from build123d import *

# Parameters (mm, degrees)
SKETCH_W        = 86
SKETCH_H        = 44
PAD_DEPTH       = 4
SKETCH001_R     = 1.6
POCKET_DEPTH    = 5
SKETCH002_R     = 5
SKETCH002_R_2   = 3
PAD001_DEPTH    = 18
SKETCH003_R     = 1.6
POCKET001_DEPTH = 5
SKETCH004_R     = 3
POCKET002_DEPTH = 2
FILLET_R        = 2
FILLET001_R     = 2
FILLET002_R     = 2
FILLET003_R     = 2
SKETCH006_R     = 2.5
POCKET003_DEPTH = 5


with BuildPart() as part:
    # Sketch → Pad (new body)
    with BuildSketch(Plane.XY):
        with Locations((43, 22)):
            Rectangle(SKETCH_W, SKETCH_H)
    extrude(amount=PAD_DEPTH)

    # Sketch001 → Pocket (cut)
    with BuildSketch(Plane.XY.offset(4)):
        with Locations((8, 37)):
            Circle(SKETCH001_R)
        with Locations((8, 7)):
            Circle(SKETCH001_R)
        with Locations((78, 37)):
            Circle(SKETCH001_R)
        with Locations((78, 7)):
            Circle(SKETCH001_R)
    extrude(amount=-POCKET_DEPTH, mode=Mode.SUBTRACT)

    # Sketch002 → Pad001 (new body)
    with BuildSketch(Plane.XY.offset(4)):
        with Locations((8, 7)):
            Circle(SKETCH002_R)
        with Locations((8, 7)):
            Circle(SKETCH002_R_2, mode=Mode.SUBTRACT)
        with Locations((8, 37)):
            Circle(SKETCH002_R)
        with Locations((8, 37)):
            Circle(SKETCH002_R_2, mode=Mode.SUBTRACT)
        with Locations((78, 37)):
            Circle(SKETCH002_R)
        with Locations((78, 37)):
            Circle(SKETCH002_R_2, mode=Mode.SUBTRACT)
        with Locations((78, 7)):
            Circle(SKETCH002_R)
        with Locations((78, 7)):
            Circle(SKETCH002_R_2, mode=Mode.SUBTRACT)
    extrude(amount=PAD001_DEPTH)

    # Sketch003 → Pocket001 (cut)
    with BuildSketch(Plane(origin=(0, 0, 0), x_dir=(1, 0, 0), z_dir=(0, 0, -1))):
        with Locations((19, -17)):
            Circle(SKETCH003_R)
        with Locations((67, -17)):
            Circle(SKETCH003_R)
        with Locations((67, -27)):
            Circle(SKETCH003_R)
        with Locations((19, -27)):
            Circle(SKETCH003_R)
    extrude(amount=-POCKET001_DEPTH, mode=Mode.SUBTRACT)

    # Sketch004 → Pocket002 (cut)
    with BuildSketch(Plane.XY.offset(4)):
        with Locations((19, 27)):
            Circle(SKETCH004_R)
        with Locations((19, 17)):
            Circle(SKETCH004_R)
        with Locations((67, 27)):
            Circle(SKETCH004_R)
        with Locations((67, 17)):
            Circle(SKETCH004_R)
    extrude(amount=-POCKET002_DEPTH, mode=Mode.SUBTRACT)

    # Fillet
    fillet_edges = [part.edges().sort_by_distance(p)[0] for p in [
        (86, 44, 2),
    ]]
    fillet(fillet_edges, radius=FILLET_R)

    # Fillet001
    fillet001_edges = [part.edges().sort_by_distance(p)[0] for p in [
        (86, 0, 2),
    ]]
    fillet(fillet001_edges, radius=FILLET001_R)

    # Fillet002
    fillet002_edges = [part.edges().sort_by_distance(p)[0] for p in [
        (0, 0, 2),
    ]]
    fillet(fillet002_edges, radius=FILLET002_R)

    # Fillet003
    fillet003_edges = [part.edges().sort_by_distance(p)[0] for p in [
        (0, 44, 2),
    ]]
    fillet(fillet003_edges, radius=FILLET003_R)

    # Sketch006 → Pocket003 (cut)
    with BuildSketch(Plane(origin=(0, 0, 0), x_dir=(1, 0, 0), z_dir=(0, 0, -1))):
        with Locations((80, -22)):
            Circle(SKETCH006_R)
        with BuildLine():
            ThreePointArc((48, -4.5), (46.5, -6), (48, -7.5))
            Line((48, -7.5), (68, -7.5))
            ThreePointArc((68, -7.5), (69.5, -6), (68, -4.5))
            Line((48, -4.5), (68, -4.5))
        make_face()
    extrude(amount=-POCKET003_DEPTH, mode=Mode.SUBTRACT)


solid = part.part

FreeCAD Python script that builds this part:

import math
import FreeCAD as App
import Part
import Sketcher

V = App.Vector
Q = App.Units.Quantity


def edges_at(feature, points):
    """Names of the edges that pass closest to the given points."""
    edges = feature.Shape.Edges
    near = lambda p: min(range(len(edges)), key=lambda i: edges[i].distToShape(Part.Vertex(*p))[0])
    return sorted({f"Edge{near(p) + 1}" for p in points})


def add_polygon(sketch, points):
    """Adds a closed chain of lines whose ends are joined by coincident constraints."""
    first, n = sketch.GeometryCount, len(points)
    for a, b in zip(points, points[1:] + points[:1]):
        sketch.addGeometry(Part.LineSegment(App.Vector(*a, 0), App.Vector(*b, 0)), False)
    for i in range(n):
        sketch.addConstraint(Sketcher.Constraint("Coincident", first + i, 2, first + (i + 1) % n, 1))

doc = App.newDocument("Part")
params = doc.addObject("Spreadsheet::Sheet", "Params")
for row, (alias, value) in enumerate([
    ("sketch1_width", "86 mm"),
    ("sketch1_height", "44 mm"),
    ("pad1_length", "4 mm"),
    ("sketch2_diameter", "3.2 mm"),
    ("pocket1_length", "5 mm"),
    ("sketch3_diameter", "10 mm"),
    ("sketch3_diameter2", "6 mm"),
    ("pad2_length", "18 mm"),
    ("sketch4_diameter", "3.2 mm"),
    ("pocket2_length", "5 mm"),
    ("sketch5_diameter", "6 mm"),
    ("pocket3_length", "2 mm"),
    ("fillet_radius", "2 mm"),
    ("fillet2_radius", "2 mm"),
    ("fillet3_radius", "2 mm"),
    ("fillet4_radius", "2 mm"),
    ("sketch6_diameter", "5 mm"),
    ("sketch6_radius", "1.5 mm"),
    ("sketch6_width", "20 mm"),
    ("pocket4_length", "5 mm"),
], start=1):
    params.set(f"A{row}", alias)
    params.set(f"B{row}", "=" + value)
    params.setAlias(f"B{row}", alias)

body = doc.addObject("PartDesign::Body", "Body")

# Sketch on XY plane
sketch1 = body.newObject("Sketcher::SketchObject", "Sketch")
sketch1.AttachmentSupport = (doc.getObject("XY_Plane"), [""])
sketch1.MapMode = "FlatFace"
add_polygon(sketch1, [(0, 44), (0, 0), (86, 0), (86, 44)])  # lines 0-3
sketch1.addConstraint([
    Sketcher.Constraint("Vertical", 0),
    Sketcher.Constraint("Horizontal", 1),
    Sketcher.Constraint("Vertical", 2),
    Sketcher.Constraint("Horizontal", 3),
    Sketcher.Constraint("Coincident", 0, 2, -1, 1),
    Sketcher.Constraint("DistanceX", 1, 1, 1, 2, Q("86 mm")),
    Sketcher.Constraint("DistanceY", 0, 2, 0, 1, Q("44 mm")),
])
sketch1.setExpression("Constraints[9]", "Params.sketch1_width")
sketch1.setExpression("Constraints[10]", "Params.sketch1_height")
pad1 = body.newObject("PartDesign::Pad", "Pad")
pad1.Profile = sketch1
pad1.setExpression("Length", "Params.pad1_length")

# Sketch on XY plane
sketch2 = body.newObject("Sketcher::SketchObject", "Sketch001")
sketch2.AttachmentSupport = (doc.getObject("XY_Plane"), [""])
sketch2.MapMode = "FlatFace"
sketch2.AttachmentOffset = App.Placement(V(0, 0, 4), App.Rotation())
sketch2.addGeometry([
    Part.Circle(V(8, 37, 0), V(0, 0, 1), 1.6),
    Part.Circle(V(8, 7, 0), V(0, 0, 1), 1.6),
    Part.Circle(V(78, 37, 0), V(0, 0, 1), 1.6),
    Part.Circle(V(78, 7, 0), V(0, 0, 1), 1.6),
], False)
sketch2.addConstraint([
    Sketcher.Constraint("Equal", 0, 1),
    Sketcher.Constraint("Equal", 1, 2),
    Sketcher.Constraint("Equal", 2, 3),
    Sketcher.Constraint("Horizontal", 0, 3, 2, 3),
    Sketcher.Constraint("Horizontal", 1, 3, 3, 3),
    Sketcher.Constraint("Vertical", 0, 3, 1, 3),
    Sketcher.Constraint("Vertical", 2, 3, 3, 3),
    Sketcher.Constraint("Diameter", 0, Q("3.2 mm")),
    Sketcher.Constraint("DistanceX", -1, 1, 0, 3, Q("8 mm")),
    Sketcher.Constraint("DistanceY", -1, 1, 0, 3, Q("37 mm")),
    Sketcher.Constraint("DistanceY", -1, 1, 1, 3, Q("7 mm")),
    Sketcher.Constraint("DistanceX", -1, 1, 2, 3, Q("78 mm")),
])
sketch2.setExpression("Constraints[7]", "Params.sketch2_diameter")
pocket1 = body.newObject("PartDesign::Pocket", "Pocket")
pocket1.Profile = sketch2
pocket1.setExpression("Length", "Params.pocket1_length")

# Sketch on XY plane
sketch3 = body.newObject("Sketcher::SketchObject", "Sketch002")
sketch3.AttachmentSupport = (doc.getObject("XY_Plane"), [""])
sketch3.MapMode = "FlatFace"
sketch3.AttachmentOffset = App.Placement(V(0, 0, 4), App.Rotation())
sketch3.addGeometry([
    Part.Circle(V(8, 7, 0), V(0, 0, 1), 5),  # 0
    Part.Circle(V(8, 7, 0), V(0, 0, 1), 3),  # 1
    Part.Circle(V(8, 37, 0), V(0, 0, 1), 5),  # 2
    Part.Circle(V(8, 37, 0), V(0, 0, 1), 3),  # 3
    Part.Circle(V(78, 37, 0), V(0, 0, 1), 5),  # 4
    Part.Circle(V(78, 37, 0), V(0, 0, 1), 3),  # 5
    Part.Circle(V(78, 7, 0), V(0, 0, 1), 5),  # 6
    Part.Circle(V(78, 7, 0), V(0, 0, 1), 3),  # 7
], False)
sketch3.addConstraint([
    Sketcher.Constraint("Coincident", 1, 3, 0, 3),
    Sketcher.Constraint("Coincident", 3, 3, 2, 3),
    Sketcher.Constraint("Coincident", 5, 3, 4, 3),
    Sketcher.Constraint("Coincident", 7, 3, 6, 3),
    Sketcher.Constraint("Equal", 0, 2),
    Sketcher.Constraint("Equal", 1, 3),
    Sketcher.Constraint("Equal", 2, 4),
    Sketcher.Constraint("Equal", 3, 5),
    Sketcher.Constraint("Equal", 4, 6),
    Sketcher.Constraint("Equal", 5, 7),
    Sketcher.Constraint("Horizontal", 3, 3, 4, 3),
    Sketcher.Constraint("Horizontal", 1, 3, 6, 3),
    Sketcher.Constraint("Vertical", 1, 3, 2, 3),
    Sketcher.Constraint("Vertical", 5, 3, 6, 3),
    Sketcher.Constraint("Diameter", 0, Q("10 mm")),
    Sketcher.Constraint("Diameter", 1, Q("6 mm")),
    Sketcher.Constraint("DistanceX", -1, 1, 0, 3, Q("8 mm")),
    Sketcher.Constraint("DistanceY", -1, 1, 0, 3, Q("7 mm")),
    Sketcher.Constraint("DistanceY", -1, 1, 2, 3, Q("37 mm")),
    Sketcher.Constraint("DistanceX", -1, 1, 4, 3, Q("78 mm")),
])
sketch3.setExpression("Constraints[14]", "Params.sketch3_diameter")
sketch3.setExpression("Constraints[15]", "Params.sketch3_diameter2")
pad2 = body.newObject("PartDesign::Pad", "Pad001")
pad2.Profile = sketch3
pad2.setExpression("Length", "Params.pad2_length")

# Sketch on XY plane
sketch4 = body.newObject("Sketcher::SketchObject", "Sketch003")
sketch4.AttachmentSupport = (doc.getObject("XY_Plane"), [""])
sketch4.MapMode = "FlatFace"
sketch4.addGeometry([
    Part.Circle(V(19, 17, 0), V(0, 0, 1), 1.6),
    Part.Circle(V(67, 17, 0), V(0, 0, 1), 1.6),
    Part.Circle(V(67, 27, 0), V(0, 0, 1), 1.6),
    Part.Circle(V(19, 27, 0), V(0, 0, 1), 1.6),
], False)
sketch4.addConstraint([
    Sketcher.Constraint("Equal", 0, 1),
    Sketcher.Constraint("Equal", 1, 2),
    Sketcher.Constraint("Equal", 2, 3),
    Sketcher.Constraint("Horizontal", 0, 3, 1, 3),
    Sketcher.Constraint("Horizontal", 2, 3, 3, 3),
    Sketcher.Constraint("Vertical", 1, 3, 2, 3),
    Sketcher.Constraint("Vertical", 0, 3, 3, 3),
    Sketcher.Constraint("Diameter", 0, Q("3.2 mm")),
    Sketcher.Constraint("DistanceX", -1, 1, 0, 3, Q("19 mm")),
    Sketcher.Constraint("DistanceY", -1, 1, 0, 3, Q("17 mm")),
    Sketcher.Constraint("DistanceX", -1, 1, 1, 3, Q("67 mm")),
    Sketcher.Constraint("DistanceY", -1, 1, 2, 3, Q("27 mm")),
])
sketch4.setExpression("Constraints[7]", "Params.sketch4_diameter")
pocket2 = body.newObject("PartDesign::Pocket", "Pocket001")
pocket2.Profile = sketch4
pocket2.setExpression("Length", "Params.pocket2_length")
pocket2.Reversed = True

# Sketch on XY plane
sketch5 = body.newObject("Sketcher::SketchObject", "Sketch004")
sketch5.AttachmentSupport = (doc.getObject("XY_Plane"), [""])
sketch5.MapMode = "FlatFace"
sketch5.AttachmentOffset = App.Placement(V(0, 0, 4), App.Rotation())
sketch5.addGeometry([
    Part.Circle(V(19, 27, 0), V(0, 0, 1), 3),
    Part.Circle(V(19, 17, 0), V(0, 0, 1), 3),
    Part.Circle(V(67, 27, 0), V(0, 0, 1), 3),
    Part.Circle(V(67, 17, 0), V(0, 0, 1), 3),
], False)
sketch5.addConstraint([
    Sketcher.Constraint("Equal", 0, 1),
    Sketcher.Constraint("Equal", 1, 2),
    Sketcher.Constraint("Equal", 2, 3),
    Sketcher.Constraint("Horizontal", 0, 3, 2, 3),
    Sketcher.Constraint("Horizontal", 1, 3, 3, 3),
    Sketcher.Constraint("Vertical", 0, 3, 1, 3),
    Sketcher.Constraint("Vertical", 2, 3, 3, 3),
    Sketcher.Constraint("Diameter", 0, Q("6 mm")),
    Sketcher.Constraint("DistanceX", -1, 1, 0, 3, Q("19 mm")),
    Sketcher.Constraint("DistanceY", -1, 1, 0, 3, Q("27 mm")),
    Sketcher.Constraint("DistanceY", -1, 1, 1, 3, Q("17 mm")),
    Sketcher.Constraint("DistanceX", -1, 1, 2, 3, Q("67 mm")),
])
sketch5.setExpression("Constraints[7]", "Params.sketch5_diameter")
pocket3 = body.newObject("PartDesign::Pocket", "Pocket002")
pocket3.Profile = sketch5
pocket3.setExpression("Length", "Params.pocket3_length")
doc.recompute()

fillet = body.newObject("PartDesign::Fillet", "Fillet")
fillet.Base = (pocket3, edges_at(pocket3, [(86, 44, 2)]))
fillet.setExpression("Radius", "Params.fillet_radius")
doc.recompute()

fillet2 = body.newObject("PartDesign::Fillet", "Fillet001")
fillet2.Base = (fillet, edges_at(fillet, [(86, 0, 2)]))
fillet2.setExpression("Radius", "Params.fillet2_radius")
doc.recompute()

fillet3 = body.newObject("PartDesign::Fillet", "Fillet002")
fillet3.Base = (fillet2, edges_at(fillet2, [(0, 0, 2)]))
fillet3.setExpression("Radius", "Params.fillet3_radius")
doc.recompute()

fillet4 = body.newObject("PartDesign::Fillet", "Fillet003")
fillet4.Base = (fillet3, edges_at(fillet3, [(0, 44, 2)]))
fillet4.setExpression("Radius", "Params.fillet4_radius")

# Sketch on XY plane
sketch6 = body.newObject("Sketcher::SketchObject", "Sketch005")
sketch6.AttachmentSupport = (doc.getObject("XY_Plane"), [""])
sketch6.MapMode = "FlatFace"
sketch6.addGeometry([
    Part.Circle(V(80, 22, 0), V(0, 0, 1), 2.5),  # 0
    Part.ArcOfCircle(Part.Circle(V(48, 6, 0), V(0, 0, 1), 1.5), math.radians(90), math.radians(270)),  # 1
    Part.LineSegment(V(48, 7.5, 0), V(68, 7.5, 0)),  # 2
    Part.ArcOfCircle(Part.Circle(V(68, 6, 0), V(0, 0, 1), 1.5), math.radians(-90), math.radians(90)),  # 3
    Part.LineSegment(V(68, 4.5, 0), V(48, 4.5, 0)),  # 4
], False)
sketch6.addConstraint([
    Sketcher.Constraint("Tangent", 1, 1, 2, 1),
    Sketcher.Constraint("Tangent", 2, 2, 3, 2),
    Sketcher.Constraint("Tangent", 3, 1, 4, 1),
    Sketcher.Constraint("Tangent", 4, 2, 1, 2),
    Sketcher.Constraint("Horizontal", 2),
    Sketcher.Constraint("Horizontal", 4),
    Sketcher.Constraint("Diameter", 0, Q("5 mm")),
    Sketcher.Constraint("Radius", 1, Q("1.5 mm")),
    Sketcher.Constraint("DistanceX", 2, 1, 2, 2, Q("20 mm")),
    Sketcher.Constraint("DistanceX", -1, 1, 0, 3, Q("80 mm")),
    Sketcher.Constraint("DistanceY", -1, 1, 0, 3, Q("22 mm")),
    Sketcher.Constraint("DistanceX", -1, 1, 1, 3, Q("48 mm")),
    Sketcher.Constraint("DistanceY", -1, 1, 1, 3, Q("6 mm")),
])
sketch6.setExpression("Constraints[6]", "Params.sketch6_diameter")
sketch6.setExpression("Constraints[7]", "Params.sketch6_radius")
sketch6.setExpression("Constraints[8]", "Params.sketch6_width")
pocket4 = body.newObject("PartDesign::Pocket", "Pocket003")
pocket4.Profile = sketch6
pocket4.setExpression("Length", "Params.pocket4_length")
pocket4.Reversed = True

doc.recompute()
